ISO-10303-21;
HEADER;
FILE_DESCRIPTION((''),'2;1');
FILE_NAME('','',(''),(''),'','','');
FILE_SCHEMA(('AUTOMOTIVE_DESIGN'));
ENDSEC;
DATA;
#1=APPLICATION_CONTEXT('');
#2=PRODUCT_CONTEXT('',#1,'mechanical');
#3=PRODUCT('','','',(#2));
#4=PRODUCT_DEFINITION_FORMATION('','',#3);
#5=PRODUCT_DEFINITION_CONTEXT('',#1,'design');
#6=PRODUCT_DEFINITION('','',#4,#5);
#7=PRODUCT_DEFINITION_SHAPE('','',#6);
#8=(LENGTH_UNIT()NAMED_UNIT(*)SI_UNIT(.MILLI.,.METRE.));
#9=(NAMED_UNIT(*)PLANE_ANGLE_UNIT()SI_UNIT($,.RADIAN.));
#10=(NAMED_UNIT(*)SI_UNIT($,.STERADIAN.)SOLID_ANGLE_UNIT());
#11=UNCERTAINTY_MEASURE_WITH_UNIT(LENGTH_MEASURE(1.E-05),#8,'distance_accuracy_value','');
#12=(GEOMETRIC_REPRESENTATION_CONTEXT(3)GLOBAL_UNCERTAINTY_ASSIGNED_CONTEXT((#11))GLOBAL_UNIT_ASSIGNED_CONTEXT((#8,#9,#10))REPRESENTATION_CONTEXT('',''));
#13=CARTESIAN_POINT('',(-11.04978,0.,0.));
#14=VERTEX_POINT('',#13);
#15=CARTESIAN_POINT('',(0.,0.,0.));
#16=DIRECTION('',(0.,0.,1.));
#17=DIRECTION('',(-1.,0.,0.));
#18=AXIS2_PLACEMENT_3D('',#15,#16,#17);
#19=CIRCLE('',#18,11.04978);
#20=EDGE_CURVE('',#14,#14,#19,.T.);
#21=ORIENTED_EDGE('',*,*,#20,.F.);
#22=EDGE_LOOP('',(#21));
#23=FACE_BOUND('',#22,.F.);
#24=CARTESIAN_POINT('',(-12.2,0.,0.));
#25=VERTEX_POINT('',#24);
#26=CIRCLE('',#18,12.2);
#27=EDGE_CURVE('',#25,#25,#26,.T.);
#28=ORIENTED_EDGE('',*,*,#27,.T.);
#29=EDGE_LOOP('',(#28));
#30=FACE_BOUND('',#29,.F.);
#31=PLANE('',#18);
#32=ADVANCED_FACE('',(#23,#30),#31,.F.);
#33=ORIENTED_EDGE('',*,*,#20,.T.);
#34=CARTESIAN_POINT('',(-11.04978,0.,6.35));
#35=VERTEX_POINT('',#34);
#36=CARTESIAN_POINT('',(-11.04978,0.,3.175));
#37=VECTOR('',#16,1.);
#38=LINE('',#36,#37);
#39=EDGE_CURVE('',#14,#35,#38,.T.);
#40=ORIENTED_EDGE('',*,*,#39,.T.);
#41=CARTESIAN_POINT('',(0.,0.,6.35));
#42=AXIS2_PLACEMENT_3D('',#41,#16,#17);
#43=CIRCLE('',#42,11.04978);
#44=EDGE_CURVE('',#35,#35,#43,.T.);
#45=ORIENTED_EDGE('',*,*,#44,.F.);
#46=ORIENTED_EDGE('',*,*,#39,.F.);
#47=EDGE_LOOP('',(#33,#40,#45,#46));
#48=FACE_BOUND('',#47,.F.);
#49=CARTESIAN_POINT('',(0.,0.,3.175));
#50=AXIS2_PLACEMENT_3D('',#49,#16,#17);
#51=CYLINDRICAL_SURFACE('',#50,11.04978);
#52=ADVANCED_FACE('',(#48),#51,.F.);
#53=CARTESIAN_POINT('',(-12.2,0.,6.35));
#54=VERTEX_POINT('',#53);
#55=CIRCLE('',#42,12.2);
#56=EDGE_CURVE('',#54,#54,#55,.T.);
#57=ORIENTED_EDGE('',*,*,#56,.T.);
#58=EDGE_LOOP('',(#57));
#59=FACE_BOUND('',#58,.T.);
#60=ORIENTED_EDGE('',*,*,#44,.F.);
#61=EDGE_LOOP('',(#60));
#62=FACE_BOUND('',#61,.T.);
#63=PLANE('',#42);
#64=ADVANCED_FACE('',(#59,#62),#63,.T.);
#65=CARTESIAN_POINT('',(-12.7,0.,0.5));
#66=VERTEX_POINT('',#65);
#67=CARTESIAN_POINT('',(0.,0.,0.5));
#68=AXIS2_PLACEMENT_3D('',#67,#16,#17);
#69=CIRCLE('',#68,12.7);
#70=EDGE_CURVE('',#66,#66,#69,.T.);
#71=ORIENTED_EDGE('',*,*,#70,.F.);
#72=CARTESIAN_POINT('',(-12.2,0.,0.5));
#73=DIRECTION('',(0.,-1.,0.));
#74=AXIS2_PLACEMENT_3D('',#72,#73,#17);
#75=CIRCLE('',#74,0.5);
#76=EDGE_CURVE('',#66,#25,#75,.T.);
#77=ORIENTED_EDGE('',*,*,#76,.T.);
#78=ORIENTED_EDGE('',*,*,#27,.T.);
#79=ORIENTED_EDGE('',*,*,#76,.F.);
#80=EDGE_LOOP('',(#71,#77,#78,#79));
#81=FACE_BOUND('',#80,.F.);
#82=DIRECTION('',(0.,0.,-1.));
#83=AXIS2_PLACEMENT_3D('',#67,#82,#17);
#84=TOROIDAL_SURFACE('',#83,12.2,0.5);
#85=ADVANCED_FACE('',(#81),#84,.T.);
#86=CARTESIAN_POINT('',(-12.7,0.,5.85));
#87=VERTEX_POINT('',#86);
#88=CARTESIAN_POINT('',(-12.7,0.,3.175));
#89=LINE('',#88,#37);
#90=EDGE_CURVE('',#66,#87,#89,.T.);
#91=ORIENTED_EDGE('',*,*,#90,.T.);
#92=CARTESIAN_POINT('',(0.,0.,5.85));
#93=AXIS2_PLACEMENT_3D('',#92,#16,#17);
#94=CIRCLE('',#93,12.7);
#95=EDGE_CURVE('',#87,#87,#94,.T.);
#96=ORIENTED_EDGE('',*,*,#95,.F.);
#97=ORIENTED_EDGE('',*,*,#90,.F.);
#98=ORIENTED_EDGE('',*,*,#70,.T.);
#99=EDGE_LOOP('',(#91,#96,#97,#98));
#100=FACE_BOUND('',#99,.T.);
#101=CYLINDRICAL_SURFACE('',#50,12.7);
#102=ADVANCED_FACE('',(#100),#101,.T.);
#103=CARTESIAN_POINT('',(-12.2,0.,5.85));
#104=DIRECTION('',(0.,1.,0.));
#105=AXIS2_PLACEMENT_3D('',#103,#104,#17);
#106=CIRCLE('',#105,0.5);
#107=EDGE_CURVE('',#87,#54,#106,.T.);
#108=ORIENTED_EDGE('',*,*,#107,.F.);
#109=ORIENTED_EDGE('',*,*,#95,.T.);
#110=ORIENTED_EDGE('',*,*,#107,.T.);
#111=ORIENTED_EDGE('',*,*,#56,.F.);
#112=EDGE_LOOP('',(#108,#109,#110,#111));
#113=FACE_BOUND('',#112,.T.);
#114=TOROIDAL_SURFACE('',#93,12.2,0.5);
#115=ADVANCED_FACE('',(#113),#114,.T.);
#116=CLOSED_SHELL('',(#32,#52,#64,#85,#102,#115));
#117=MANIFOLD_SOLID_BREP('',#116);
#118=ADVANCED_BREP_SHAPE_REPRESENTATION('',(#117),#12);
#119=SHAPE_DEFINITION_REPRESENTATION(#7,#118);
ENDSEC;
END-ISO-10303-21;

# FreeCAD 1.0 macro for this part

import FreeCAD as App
import Part
import Sketcher

V = App.Vector


def edges_at(feature, points):
    """Names of the edges that pass closest to the given points."""
    edges = feature.Shape.Edges
    near = lambda p: min(range(len(edges)), key=lambda i: edges[i].distToShape(Part.Vertex(*p))[0])
    return sorted({f"Edge{near(p) + 1}" for p in points})

doc = App.newDocument("Part")
body = doc.addObject("PartDesign::Body", "Body")

# Sketch on XZ plane
sketch1 = body.newObject("Sketcher::SketchObject", "Sketch")
sketch1.AttachmentSupport = (doc.getObject("XZ_Plane"), [""])
sketch1.MapMode = "FlatFace"
sketch1.addGeometry([
    Part.LineSegment(V(-12.7, 6.3, 0), V(-12.7, 0, 0)),
    Part.LineSegment(V(-12.7, 0, 0), V(-11, 0, 0)),
    Part.LineSegment(V(-11, 0, 0), V(-11, 6.3, 0)),
    Part.LineSegment(V(-11, 6.3, 0), V(-12.7, 6.3, 0)),
], False)
sketch1.addConstraint([
    Sketcher.Constraint("Coincident", 0, 2, 1, 1),
    Sketcher.Constraint("Coincident", 1, 2, 2, 1),
    Sketcher.Constraint("Coincident", 2, 2, 3, 1),
    Sketcher.Constraint("Coincident", 3, 2, 0, 1),
    Sketcher.Constraint("Vertical", 0),
    Sketcher.Constraint("Horizontal", 1),
    Sketcher.Constraint("Vertical", 2),
    Sketcher.Constraint("Horizontal", 3),
    Sketcher.Constraint("PointOnObject", 0, 2, -1),
    Sketcher.Constraint("DistanceY", 0, 2, 0, 1, 6.35),
    Sketcher.Constraint("DistanceX", 0, 2, -1, 1, 12.7),
    Sketcher.Constraint("DistanceX", 1, 1, 1, 2, 1.65022),
])
revolution = body.newObject("PartDesign::Revolution", "Revolution")
revolution.Profile = sketch1
revolution.ReferenceAxis = (sketch1, ["V_Axis"])
revolution.Angle = 360
doc.recompute()

fillet = body.newObject("PartDesign::Fillet", "Fillet")
fillet.Base = (revolution, edges_at(revolution, [(12.7, 0, 6.35), (12.7, 0, 0)]))
fillet.Radius = 0.5

doc.recompute()
